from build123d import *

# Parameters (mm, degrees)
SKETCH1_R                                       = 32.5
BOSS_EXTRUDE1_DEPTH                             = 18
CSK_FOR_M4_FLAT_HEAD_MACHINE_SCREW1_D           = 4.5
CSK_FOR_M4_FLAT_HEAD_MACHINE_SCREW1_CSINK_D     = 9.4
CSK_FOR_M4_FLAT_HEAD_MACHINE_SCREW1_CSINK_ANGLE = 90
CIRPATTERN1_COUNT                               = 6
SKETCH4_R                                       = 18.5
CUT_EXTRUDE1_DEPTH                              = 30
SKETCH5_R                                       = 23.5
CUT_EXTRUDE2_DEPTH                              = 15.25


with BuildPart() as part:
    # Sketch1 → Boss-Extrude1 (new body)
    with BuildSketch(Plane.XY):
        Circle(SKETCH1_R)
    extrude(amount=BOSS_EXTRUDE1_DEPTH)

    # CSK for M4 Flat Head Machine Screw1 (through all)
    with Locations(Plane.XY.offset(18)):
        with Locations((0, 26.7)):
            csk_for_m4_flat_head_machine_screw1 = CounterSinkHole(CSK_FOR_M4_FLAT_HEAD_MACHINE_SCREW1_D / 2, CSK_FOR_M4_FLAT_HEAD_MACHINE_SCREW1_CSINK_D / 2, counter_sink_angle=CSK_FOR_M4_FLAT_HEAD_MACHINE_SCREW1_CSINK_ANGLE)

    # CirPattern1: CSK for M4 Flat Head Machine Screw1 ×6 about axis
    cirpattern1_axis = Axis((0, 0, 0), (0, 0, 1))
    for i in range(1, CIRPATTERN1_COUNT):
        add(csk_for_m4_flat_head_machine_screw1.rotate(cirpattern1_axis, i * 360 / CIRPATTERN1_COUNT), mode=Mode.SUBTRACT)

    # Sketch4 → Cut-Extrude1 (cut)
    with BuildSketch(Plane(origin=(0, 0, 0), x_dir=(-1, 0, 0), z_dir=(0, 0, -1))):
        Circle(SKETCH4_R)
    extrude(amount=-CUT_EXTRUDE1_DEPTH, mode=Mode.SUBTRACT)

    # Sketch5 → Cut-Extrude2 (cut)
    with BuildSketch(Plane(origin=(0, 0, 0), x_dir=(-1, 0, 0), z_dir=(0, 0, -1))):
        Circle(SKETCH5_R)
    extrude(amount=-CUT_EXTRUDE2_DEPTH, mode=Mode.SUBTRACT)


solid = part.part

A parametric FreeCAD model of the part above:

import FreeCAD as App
import Part
import Sketcher

doc = App.newDocument("Part")
params = doc.addObject("Spreadsheet::Sheet", "Params")
for row, (alias, value) in enumerate([
    ("sketch1_diameter", "65 mm"),
    ("pad1_length", "18 mm"),
    ("sketch2_diameter", "4.5 mm"),
    ("hole_diameter", "4.5 mm"),
    ("hole_csink_diameter", "9.4 mm"),
    ("sketch3_diameter", "37 mm"),
    ("pocket1_length", "30 mm"),
    ("sketch4_diameter", "47 mm"),
    ("pocket2_length", "15.25 mm"),
], start=1):
    params.set(f"A{row}", alias)
    params.set(f"B{row}", "=" + value)
    params.setAlias(f"B{row}", alias)

body = doc.addObject("PartDesign::Body", "Body")

# Sketch on XY plane
sketch1 = body.newObject("Sketcher::SketchObject", "Sketch")
sketch1.AttachmentSupport = (doc.getObject("XY_Plane"), [""])
sketch1.MapMode = "FlatFace"
sketch1.addGeometry(Part.Circle(App.Vector(0, 0, 0), App.Vector(0, 0, 1), 32.5), False)
sketch1.addConstraint([
    Sketcher.Constraint("Coincident", 0, 3, -1, 1),
    Sketcher.Constraint("Diameter", 0, 65.0),
])
sketch1.setExpression("Constraints[1]", "Params.sketch1_diameter")
pad1 = body.newObject("PartDesign::Pad", "Pad")
pad1.Profile = sketch1
pad1.setExpression("Length", "Params.pad1_length")

# Sketch on XY plane
sketch2 = body.newObject("Sketcher::SketchObject", "Sketch001")
sketch2.AttachmentSupport = (doc.getObject("XY_Plane"), [""])
sketch2.MapMode = "FlatFace"
sketch2.AttachmentOffset = App.Placement(App.Vector(0, 0, 18), App.Rotation())
sketch2.addGeometry(Part.Circle(App.Vector(0, 26.7, 0), App.Vector(0, 0, 1), 2.25), False)
sketch2.addConstraint([
    Sketcher.Constraint("PointOnObject", 0, 3, -2),
    Sketcher.Constraint("Diameter", 0, 4.5),
    Sketcher.Constraint("DistanceY", -1, 1, 0, 3, 26.7),
])
sketch2.setExpression("Constraints[1]", "Params.sketch2_diameter")
doc.recompute()
hole = body.newObject("PartDesign::Hole", "Hole")
hole.Profile = sketch2
hole.ThreadType = "None"
hole.setExpression("Diameter", "Params.hole_diameter")
hole.DepthType = "ThroughAll"
hole.HoleCutType = "Countersink"
hole.setExpression("HoleCutDiameter", "Params.hole_csink_diameter")
hole.HoleCutCountersinkAngle = 90
doc.recompute()

polarpattern = body.newObject("PartDesign::PolarPattern", "PolarPattern")
polarpattern.Originals = [hole]
polarpattern.Axis = (doc.getObject("Z_Axis"), [""])
polarpattern.Angle = 360
polarpattern.Occurrences = 6
body.Tip = polarpattern

# Sketch on XY plane
sketch3 = body.newObject("Sketcher::SketchObject", "Sketch002")
sketch3.AttachmentSupport = (doc.getObject("XY_Plane"), [""])
sketch3.MapMode = "FlatFace"
sketch3.addGeometry(Part.Circle(App.Vector(0, 0, 0), App.Vector(0, 0, 1), 18.5), False)
sketch3.addConstraint([
    Sketcher.Constraint("Coincident", 0, 3, -1, 1),
    Sketcher.Constraint("Diameter", 0, 37.0),
])
sketch3.setExpression("Constraints[1]", "Params.sketch3_diameter")
pocket1 = body.newObject("PartDesign::Pocket", "Pocket")
pocket1.Profile = sketch3
pocket1.setExpression("Length", "Params.pocket1_length")
pocket1.Reversed = True

# Sketch on XY plane
sketch4 = body.newObject("Sketcher::SketchObject", "Sketch003")
sketch4.AttachmentSupport = (doc.getObject("XY_Plane"), [""])
sketch4.MapMode = "FlatFace"
sketch4.addGeometry(Part.Circle(App.Vector(0, 0, 0), App.Vector(0, 0, 1), 23.5), False)
sketch4.addConstraint([
    Sketcher.Constraint("Coincident", 0, 3, -1, 1),
    Sketcher.Constraint("Diameter", 0, 47.0),
])
sketch4.setExpression("Constraints[1]", "Params.sketch4_diameter")
pocket2 = body.newObject("PartDesign::Pocket", "Pocket001")
pocket2.Profile = sketch4
pocket2.setExpression("Length", "Params.pocket2_length")
pocket2.Reversed = True

doc.recompute()
